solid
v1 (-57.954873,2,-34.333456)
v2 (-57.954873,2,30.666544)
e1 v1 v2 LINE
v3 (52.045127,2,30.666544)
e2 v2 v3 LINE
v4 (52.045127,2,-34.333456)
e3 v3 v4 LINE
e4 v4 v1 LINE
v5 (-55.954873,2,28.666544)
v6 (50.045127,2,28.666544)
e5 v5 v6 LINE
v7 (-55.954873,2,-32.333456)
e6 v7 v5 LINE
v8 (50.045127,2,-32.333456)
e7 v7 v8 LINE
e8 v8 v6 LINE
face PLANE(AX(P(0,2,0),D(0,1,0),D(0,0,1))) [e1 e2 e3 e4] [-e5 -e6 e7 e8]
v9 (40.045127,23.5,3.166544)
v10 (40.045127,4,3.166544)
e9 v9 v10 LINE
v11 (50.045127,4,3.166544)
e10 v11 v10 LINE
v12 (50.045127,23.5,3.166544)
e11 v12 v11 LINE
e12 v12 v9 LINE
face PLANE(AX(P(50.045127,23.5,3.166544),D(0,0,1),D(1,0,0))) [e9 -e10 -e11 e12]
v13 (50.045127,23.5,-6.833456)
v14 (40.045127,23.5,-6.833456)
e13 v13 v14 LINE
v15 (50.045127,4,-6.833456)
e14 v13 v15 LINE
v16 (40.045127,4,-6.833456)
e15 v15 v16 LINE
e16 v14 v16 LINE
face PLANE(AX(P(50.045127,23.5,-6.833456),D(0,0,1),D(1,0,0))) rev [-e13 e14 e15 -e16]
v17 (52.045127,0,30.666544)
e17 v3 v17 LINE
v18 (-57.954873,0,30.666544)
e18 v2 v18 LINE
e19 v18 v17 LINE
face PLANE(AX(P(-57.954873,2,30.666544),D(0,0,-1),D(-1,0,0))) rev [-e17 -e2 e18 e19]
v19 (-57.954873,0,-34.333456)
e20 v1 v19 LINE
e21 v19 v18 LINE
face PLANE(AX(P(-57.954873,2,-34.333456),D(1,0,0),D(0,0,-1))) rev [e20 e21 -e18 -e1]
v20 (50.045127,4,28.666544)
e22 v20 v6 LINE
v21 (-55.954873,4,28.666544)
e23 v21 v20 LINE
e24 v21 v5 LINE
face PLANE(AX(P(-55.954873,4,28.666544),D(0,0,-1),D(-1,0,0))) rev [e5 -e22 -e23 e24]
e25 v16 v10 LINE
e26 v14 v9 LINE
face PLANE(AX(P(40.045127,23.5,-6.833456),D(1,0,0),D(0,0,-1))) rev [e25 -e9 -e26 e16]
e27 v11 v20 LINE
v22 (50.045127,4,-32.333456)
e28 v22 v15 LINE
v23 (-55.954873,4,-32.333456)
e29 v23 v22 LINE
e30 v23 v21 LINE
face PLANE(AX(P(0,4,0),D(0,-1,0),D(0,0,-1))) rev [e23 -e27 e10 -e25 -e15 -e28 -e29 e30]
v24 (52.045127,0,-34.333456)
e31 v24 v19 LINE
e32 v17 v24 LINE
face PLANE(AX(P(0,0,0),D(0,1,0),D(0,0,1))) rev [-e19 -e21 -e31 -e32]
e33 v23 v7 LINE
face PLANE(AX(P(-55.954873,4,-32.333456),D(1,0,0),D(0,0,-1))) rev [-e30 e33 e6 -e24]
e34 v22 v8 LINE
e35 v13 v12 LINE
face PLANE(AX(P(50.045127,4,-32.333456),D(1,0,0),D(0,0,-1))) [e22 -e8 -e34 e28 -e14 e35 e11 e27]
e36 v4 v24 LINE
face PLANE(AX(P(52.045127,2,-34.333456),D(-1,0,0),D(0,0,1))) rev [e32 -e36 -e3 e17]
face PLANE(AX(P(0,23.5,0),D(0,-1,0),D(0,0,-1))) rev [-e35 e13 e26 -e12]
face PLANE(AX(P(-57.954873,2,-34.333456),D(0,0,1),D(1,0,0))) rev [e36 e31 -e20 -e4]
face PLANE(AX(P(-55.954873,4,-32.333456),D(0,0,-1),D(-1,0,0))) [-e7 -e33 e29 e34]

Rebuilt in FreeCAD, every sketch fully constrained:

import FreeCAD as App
import Part
import Sketcher

V = App.Vector


def add_polygon(sketch, points):
    """Adds a closed chain of lines whose ends are joined by coincident constraints."""
    first, n = sketch.GeometryCount, len(points)
    for a, b in zip(points, points[1:] + points[:1]):
        sketch.addGeometry(Part.LineSegment(App.Vector(*a, 0), App.Vector(*b, 0)), False)
    for i in range(n):
        sketch.addConstraint(Sketcher.Constraint("Coincident", first + i, 2, first + (i + 1) % n, 1))

doc = App.newDocument("Part")
body = doc.addObject("PartDesign::Body", "Body")

# Sketch on XZ plane
sketch1 = body.newObject("Sketcher::SketchObject", "Sketch")
sketch1.AttachmentSupport = (doc.getObject("XZ_Plane"), [""])
sketch1.MapMode = "FlatFace"
add_polygon(sketch1, [(-58, -34), (-58, 31), (52, 31), (52, -34)])  # lines 0-3
sketch1.addConstraint(Sketcher.Constraint("Vertical", 0))
sketch1.addConstraint(Sketcher.Constraint("Horizontal", 1))
sketch1.addConstraint(Sketcher.Constraint("Vertical", 2))
sketch1.addConstraint(Sketcher.Constraint("Horizontal", 3))
sketch1.addConstraint(Sketcher.Constraint("DistanceX", 1, 1, 1, 2, 110.0))
sketch1.addConstraint(Sketcher.Constraint("DistanceY", 0, 1, 0, 2, 65.0))
sketch1.addConstraint(Sketcher.Constraint("DistanceX", 0, 2, -1, 1, 57.954873))
sketch1.addConstraint(Sketcher.Constraint("DistanceY", -1, 1, 0, 2, 30.666544))
pad1 = body.newObject("PartDesign::Pad", "Pad")
pad1.Profile = sketch1
pad1.Length = 2
pad1.Reversed = True

# Sketch on XZ plane
sketch2 = body.newObject("Sketcher::SketchObject", "Sketch001")
sketch2.AttachmentSupport = (doc.getObject("XZ_Plane"), [""])
sketch2.MapMode = "FlatFace"
sketch2.AttachmentOffset = App.Placement(V(0, 0, -2), App.Rotation())
add_polygon(sketch2, [(-56, -32), (-56, 29), (50, 29), (50, -32)])  # lines 0-3
sketch2.addConstraint(Sketcher.Constraint("Vertical", 0))
sketch2.addConstraint(Sketcher.Constraint("Horizontal", 1))
sketch2.addConstraint(Sketcher.Constraint("Vertical", 2))
sketch2.addConstraint(Sketcher.Constraint("Horizontal", 3))
sketch2.addConstraint(Sketcher.Constraint("DistanceX", 1, 1, 1, 2, 106.0))
sketch2.addConstraint(Sketcher.Constraint("DistanceY", 0, 1, 0, 2, 61.0))
sketch2.addConstraint(Sketcher.Constraint("DistanceX", 0, 2, -1, 1, 55.954873))
sketch2.addConstraint(Sketcher.Constraint("DistanceY", -1, 1, 0, 2, 28.666544))
pad2 = body.newObject("PartDesign::Pad", "Pad001")
pad2.Profile = sketch2
pad2.Length = 2
pad2.Reversed = True

# Sketch on XZ plane
sketch3 = body.newObject("Sketcher::SketchObject", "Sketch002")
sketch3.AttachmentSupport = (doc.getObject("XZ_Plane"), [""])
sketch3.MapMode = "FlatFace"
sketch3.AttachmentOffset = App.Placement(V(0, 0, -4), App.Rotation())
add_polygon(sketch3, [(40, -7), (40, 3), (50, 3), (50, -7)])  # lines 0-3
sketch3.addConstraint(Sketcher.Constraint("Vertical", 0))
sketch3.addConstraint(Sketcher.Constraint("Horizontal", 1))
sketch3.addConstraint(Sketcher.Constraint("Vertical", 2))
sketch3.addConstraint(Sketcher.Constraint("Horizontal", 3))
sketch3.addConstraint(Sketcher.Constraint("Equal", 3, 0))
sketch3.addConstraint(Sketcher.Constraint("DistanceX", 1, 1, 1, 2, 10.0))
sketch3.addConstraint(Sketcher.Constraint("DistanceX", -1, 1, 0, 2, 40.045127))
sketch3.addConstraint(Sketcher.Constraint("DistanceY", -1, 1, 0, 2, 3.166544))
pad3 = body.newObject("PartDesign::Pad", "Pad002")
pad3.Profile = sketch3
pad3.Length = 19.5
pad3.Reversed = True

doc.recompute()
